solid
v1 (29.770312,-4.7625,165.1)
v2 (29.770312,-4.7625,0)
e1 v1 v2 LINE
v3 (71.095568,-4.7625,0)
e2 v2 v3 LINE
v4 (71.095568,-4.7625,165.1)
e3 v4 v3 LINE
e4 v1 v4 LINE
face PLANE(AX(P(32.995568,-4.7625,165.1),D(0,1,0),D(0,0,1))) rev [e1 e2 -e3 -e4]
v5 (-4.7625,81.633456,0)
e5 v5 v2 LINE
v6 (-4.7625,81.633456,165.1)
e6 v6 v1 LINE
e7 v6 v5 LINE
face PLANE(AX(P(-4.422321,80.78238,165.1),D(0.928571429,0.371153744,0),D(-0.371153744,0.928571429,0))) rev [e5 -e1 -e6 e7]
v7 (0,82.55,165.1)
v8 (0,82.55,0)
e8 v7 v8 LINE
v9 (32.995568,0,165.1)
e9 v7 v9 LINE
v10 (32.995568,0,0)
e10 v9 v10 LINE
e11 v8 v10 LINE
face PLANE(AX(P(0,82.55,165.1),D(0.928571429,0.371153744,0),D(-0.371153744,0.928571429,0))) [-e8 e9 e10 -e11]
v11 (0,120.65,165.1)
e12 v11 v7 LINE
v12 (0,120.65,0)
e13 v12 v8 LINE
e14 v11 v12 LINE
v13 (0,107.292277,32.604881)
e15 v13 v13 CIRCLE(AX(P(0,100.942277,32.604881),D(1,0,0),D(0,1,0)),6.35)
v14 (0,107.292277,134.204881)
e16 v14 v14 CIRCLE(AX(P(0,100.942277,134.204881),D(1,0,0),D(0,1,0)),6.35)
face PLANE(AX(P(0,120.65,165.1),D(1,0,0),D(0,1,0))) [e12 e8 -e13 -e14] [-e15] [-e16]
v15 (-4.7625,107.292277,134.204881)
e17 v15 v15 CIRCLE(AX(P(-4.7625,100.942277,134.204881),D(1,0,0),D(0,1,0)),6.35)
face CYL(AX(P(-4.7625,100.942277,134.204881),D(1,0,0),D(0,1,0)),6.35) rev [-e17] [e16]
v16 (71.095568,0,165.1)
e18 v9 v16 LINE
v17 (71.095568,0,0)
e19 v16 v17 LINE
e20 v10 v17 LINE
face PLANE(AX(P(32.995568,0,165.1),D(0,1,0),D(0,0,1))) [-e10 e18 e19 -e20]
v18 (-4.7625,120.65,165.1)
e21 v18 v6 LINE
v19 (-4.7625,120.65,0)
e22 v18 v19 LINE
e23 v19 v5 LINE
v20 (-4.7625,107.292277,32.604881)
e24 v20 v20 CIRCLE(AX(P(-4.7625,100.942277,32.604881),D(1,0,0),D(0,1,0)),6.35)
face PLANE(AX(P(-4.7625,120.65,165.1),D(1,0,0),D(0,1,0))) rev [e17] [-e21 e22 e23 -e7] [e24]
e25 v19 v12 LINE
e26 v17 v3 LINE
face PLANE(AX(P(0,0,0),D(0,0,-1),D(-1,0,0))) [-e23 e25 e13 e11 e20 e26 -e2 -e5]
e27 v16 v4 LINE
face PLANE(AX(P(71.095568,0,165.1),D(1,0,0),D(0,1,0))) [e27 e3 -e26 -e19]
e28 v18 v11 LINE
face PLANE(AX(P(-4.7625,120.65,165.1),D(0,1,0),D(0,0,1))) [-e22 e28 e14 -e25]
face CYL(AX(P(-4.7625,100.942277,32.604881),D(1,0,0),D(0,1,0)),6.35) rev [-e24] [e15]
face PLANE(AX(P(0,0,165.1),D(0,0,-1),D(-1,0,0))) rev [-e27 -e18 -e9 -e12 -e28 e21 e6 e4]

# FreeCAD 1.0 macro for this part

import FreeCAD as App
import Part
import Sketcher
Q = App.Units.Quantity


def add_polygon(sketch, points):
    """Adds a closed chain of lines whose ends are joined by coincident constraints."""
    first, n = sketch.GeometryCount, len(points)
    for a, b in zip(points, points[1:] + points[:1]):
        sketch.addGeometry(Part.LineSegment(App.Vector(*a, 0), App.Vector(*b, 0)), False)
    for i in range(n):
        sketch.addConstraint(Sketcher.Constraint("Coincident", first + i, 2, first + (i + 1) % n, 1))

doc = App.newDocument("Part")
body = doc.addObject("PartDesign::Body", "Body")

# Sketch on XY plane
sketch1 = doc.addObject("Sketcher::SketchObject", "Sketch")
body.addObject(sketch1)
sketch1.AttachmentSupport = (doc.XY_Plane, [""])
sketch1.MapMode = "FlatFace"
add_polygon(sketch1, [(0, 82.5), (0, 120.7), (-4.8, 120.7), (-4.8, 81.6), (29.8, -4.8), (71.1, -4.8), (71.1, 0), (33, 0)])  # lines 0-7
sketch1.addConstraint(Sketcher.Constraint("Vertical", 0))
sketch1.addConstraint(Sketcher.Constraint("Horizontal", 1))
sketch1.addConstraint(Sketcher.Constraint("Vertical", 2))
sketch1.addConstraint(Sketcher.Constraint("Horizontal", 4))
sketch1.addConstraint(Sketcher.Constraint("Vertical", 5))
sketch1.addConstraint(Sketcher.Constraint("Horizontal", 6))
sketch1.addConstraint(Sketcher.Constraint("PointOnObject", 0, 2, -2))
sketch1.addConstraint(Sketcher.Constraint("PointOnObject", 5, 2, -1))
sketch1.addConstraint(Sketcher.Constraint("Parallel", 3, 7))
sketch1.addConstraint(Sketcher.Constraint("Equal", 6, 0))
sketch1.addConstraint(Sketcher.Constraint("Equal", 1, 5))
sketch1.addConstraint(Sketcher.Constraint("DistanceX", 6, 2, 6, 1, Q("1.5 in")))
sketch1.addConstraint(Sketcher.Constraint("Distance", 7, Q("3.5 in")))
sketch1.addConstraint(Sketcher.Constraint("DistanceX", 1, 2, 1, 1, Q("0.1875 in")))
sketch1.addConstraint(Sketcher.Constraint("DistanceY", -1, 1, 0, 2, Q("4.75 in")))
sketch1.addConstraint(Sketcher.Constraint("Distance", 3, 93.041799))
pad1 = doc.addObject("PartDesign::Pad", "Pad")
body.addObject(pad1)
pad1.Profile = sketch1
pad1.Length = Q("6.5 in")

# Sketch on YZ plane
sketch2 = doc.addObject("Sketcher::SketchObject", "Sketch001")
body.addObject(sketch2)
sketch2.AttachmentSupport = (doc.YZ_Plane, [""])
sketch2.MapMode = "FlatFace"
sketch2.addGeometry(Part.Circle(App.Vector(101, 134, 0), App.Vector(0, 0, 1), 6), False)
sketch2.addGeometry(Part.Circle(App.Vector(101, 33, 0), App.Vector(0, 0, 1), 6), False)
sketch2.addConstraint(Sketcher.Constraint("Equal", 0, 1))
sketch2.addConstraint(Sketcher.Constraint("Vertical", 0, 3, 1, 3))
sketch2.addConstraint(Sketcher.Constraint("Diameter", 0, Q("0.5 in")))
sketch2.addConstraint(Sketcher.Constraint("DistanceY", 1, 3, 0, 3, Q("4 in")))
sketch2.addConstraint(Sketcher.Constraint("DistanceY", -1, 1, 0, 3, 134.204881))
sketch2.addConstraint(Sketcher.Constraint("DistanceX", -1, 1, 0, 3, 100.942277))
pocket1 = doc.addObject("PartDesign::Pocket", "Pocket")
body.addObject(pocket1)
pocket1.Profile = sketch2
pocket1.Type = "ThroughAll"

doc.recompute()
